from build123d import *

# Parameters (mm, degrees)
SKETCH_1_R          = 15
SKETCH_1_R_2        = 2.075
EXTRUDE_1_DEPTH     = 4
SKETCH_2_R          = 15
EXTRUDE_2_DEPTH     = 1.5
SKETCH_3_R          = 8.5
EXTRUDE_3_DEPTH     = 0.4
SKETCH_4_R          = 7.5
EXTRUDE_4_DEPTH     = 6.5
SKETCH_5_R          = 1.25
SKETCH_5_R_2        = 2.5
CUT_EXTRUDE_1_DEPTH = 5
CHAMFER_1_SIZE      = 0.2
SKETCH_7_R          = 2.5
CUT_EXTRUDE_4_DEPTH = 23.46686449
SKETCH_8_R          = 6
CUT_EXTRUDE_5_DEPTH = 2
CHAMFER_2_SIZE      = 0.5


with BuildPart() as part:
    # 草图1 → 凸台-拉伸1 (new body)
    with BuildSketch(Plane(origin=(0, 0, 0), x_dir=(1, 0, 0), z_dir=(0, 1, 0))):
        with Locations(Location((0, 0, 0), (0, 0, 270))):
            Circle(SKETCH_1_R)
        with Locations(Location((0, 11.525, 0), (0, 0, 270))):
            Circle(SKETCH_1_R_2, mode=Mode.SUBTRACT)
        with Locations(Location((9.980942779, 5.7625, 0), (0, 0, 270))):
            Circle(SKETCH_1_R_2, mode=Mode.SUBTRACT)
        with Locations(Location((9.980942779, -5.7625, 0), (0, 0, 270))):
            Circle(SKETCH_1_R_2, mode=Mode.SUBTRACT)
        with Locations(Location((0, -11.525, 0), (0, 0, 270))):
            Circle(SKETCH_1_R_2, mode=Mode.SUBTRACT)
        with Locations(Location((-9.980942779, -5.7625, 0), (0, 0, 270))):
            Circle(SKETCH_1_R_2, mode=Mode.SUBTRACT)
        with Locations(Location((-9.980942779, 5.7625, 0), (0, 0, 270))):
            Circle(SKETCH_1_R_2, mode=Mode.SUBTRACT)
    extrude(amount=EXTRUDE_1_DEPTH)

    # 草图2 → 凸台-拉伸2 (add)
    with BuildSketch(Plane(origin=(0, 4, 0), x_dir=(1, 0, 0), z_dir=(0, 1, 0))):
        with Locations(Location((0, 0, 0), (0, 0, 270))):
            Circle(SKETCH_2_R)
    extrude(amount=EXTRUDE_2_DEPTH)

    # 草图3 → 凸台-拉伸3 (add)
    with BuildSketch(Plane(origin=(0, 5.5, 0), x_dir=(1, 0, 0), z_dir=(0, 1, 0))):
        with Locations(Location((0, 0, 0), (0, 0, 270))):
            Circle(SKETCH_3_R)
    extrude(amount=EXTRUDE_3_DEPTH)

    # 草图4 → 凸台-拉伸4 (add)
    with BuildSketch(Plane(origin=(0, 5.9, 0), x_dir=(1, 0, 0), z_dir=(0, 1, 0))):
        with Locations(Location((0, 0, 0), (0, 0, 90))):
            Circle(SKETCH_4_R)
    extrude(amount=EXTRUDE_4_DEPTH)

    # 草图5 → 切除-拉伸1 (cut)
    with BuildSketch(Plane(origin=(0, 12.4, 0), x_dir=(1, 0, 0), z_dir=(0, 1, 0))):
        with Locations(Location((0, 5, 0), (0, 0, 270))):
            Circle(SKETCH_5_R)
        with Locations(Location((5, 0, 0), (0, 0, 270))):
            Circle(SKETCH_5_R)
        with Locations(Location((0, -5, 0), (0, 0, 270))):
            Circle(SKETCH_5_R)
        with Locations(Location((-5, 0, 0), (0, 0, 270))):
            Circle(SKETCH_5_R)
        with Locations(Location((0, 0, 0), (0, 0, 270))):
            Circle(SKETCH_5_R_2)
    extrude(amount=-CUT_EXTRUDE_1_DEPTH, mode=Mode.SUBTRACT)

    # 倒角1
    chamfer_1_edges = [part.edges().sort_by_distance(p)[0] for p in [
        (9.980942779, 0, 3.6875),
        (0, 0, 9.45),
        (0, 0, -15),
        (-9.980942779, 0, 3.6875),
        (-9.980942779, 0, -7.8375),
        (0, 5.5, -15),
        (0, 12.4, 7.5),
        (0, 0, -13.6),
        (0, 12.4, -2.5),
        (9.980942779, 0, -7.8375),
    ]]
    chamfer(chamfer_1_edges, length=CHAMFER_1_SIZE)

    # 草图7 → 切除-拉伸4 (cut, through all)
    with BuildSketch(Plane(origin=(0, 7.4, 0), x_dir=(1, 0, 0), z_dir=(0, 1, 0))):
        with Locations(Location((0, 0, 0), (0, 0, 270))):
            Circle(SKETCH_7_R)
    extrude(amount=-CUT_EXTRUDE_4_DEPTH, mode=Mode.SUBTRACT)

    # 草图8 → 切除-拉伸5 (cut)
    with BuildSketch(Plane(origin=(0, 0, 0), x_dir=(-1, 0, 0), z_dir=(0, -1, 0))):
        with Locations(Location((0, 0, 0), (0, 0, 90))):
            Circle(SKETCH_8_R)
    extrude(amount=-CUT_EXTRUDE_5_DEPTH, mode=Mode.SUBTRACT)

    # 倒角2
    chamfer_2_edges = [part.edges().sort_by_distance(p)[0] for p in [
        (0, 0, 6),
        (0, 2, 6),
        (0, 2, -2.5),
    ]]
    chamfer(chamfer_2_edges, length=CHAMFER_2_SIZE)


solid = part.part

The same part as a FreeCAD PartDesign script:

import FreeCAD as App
import Part
import Sketcher

V = App.Vector
Q = App.Units.Quantity


def edges_at(feature, points):
    """Names of the edges that pass closest to the given points."""
    edges = feature.Shape.Edges
    near = lambda p: min(range(len(edges)), key=lambda i: edges[i].distToShape(Part.Vertex(*p))[0])
    return sorted({f"Edge{near(p) + 1}" for p in points})

doc = App.newDocument("Part")
params = doc.addObject("Spreadsheet::Sheet", "Params")
for row, (alias, value) in enumerate([
    ("sketch1_diameter", "30 mm"),
    ("sketch1_diameter2", "4.15 mm"),
    ("pad1_length", "4 mm"),
    ("sketch2_diameter", "30 mm"),
    ("pad2_length", "1.5 mm"),
    ("sketch3_diameter", "17 mm"),
    ("pad3_length", "0.4 mm"),
    ("sketch4_diameter", "15 mm"),
    ("pad4_length", "6.5 mm"),
    ("sketch5_diameter", "5 mm"),
    ("sketch5_diameter2", "2.5 mm"),
    ("pocket1_length", "5 mm"),
    ("chamfer_size", "0.2 mm"),
    ("sketch6_diameter", "5 mm"),
    ("sketch7_diameter", "12 mm"),
    ("pocket3_length", "2 mm"),
    ("chamfer2_size", "0.5 mm"),
], start=1):
    params.set(f"A{row}", alias)
    params.set(f"B{row}", "=" + value)
    params.setAlias(f"B{row}", alias)

body = doc.addObject("PartDesign::Body", "Body")

sketch1 = body.newObject("Sketcher::SketchObject", "Sketch")
sketch1.AttachmentSupport = (doc.getObject("XZ_Plane"), [""])
sketch1.MapMode = "FlatFace"
sketch1.addGeometry([
    Part.Circle(V(0, 0, 0), V(0, 0, 1), 15),
    Part.Circle(V(-10, -5.8, 0), V(0, 0, 1), 2.1),
    Part.Circle(V(0, -11.5, 0), V(0, 0, 1), 2.1),
    Part.Circle(V(-10, 5.8, 0), V(0, 0, 1), 2.1),
    Part.Circle(V(10, -5.8, 0), V(0, 0, 1), 2.1),
    Part.Circle(V(0, 11.5, 0), V(0, 0, 1), 2.1),
    Part.Circle(V(10, 5.8, 0), V(0, 0, 1), 2.1),
], False)
sketch1.addConstraint([
    Sketcher.Constraint("Coincident", 0, 3, -1, 1),
    Sketcher.Constraint("Equal", 1, 2),
    Sketcher.Constraint("Equal", 2, 3),
    Sketcher.Constraint("Equal", 3, 4),
    Sketcher.Constraint("Equal", 4, 5),
    Sketcher.Constraint("Equal", 5, 6),
    Sketcher.Constraint("Symmetric", 3, 3, 4, 3, -1, 1),
    Sketcher.Constraint("Symmetric", 2, 3, 5, 3, -1, 1),
    Sketcher.Constraint("Symmetric", 1, 3, 6, 3, -1, 1),
    Sketcher.Constraint("Symmetric", 1, 3, 4, 3, -2),
    Sketcher.Constraint("PointOnObject", 2, 3, -2),
    Sketcher.Constraint("Diameter", 0, Q("30 mm")),
    Sketcher.Constraint("Diameter", 1, Q("4.15 mm")),
    Sketcher.Constraint("DistanceY", 2, 3, 5, 3, Q("23.05 mm")),
    Sketcher.Constraint("DistanceY", 1, 3, 3, 3, Q("11.525 mm")),
    Sketcher.Constraint("DistanceX", 1, 3, -1, 1, Q("9.980943 mm")),
])
sketch1.setExpression("Constraints[11]", "Params.sketch1_diameter")
sketch1.setExpression("Constraints[12]", "Params.sketch1_diameter2")
pad1 = body.newObject("PartDesign::Pad", "Pad")
pad1.Profile = sketch1
pad1.setExpression("Length", "Params.pad1_length")
pad1.Reversed = True

sketch2 = body.newObject("Sketcher::SketchObject", "Sketch001")
sketch2.AttachmentSupport = (doc.getObject("XZ_Plane"), [""])
sketch2.MapMode = "FlatFace"
sketch2.AttachmentOffset = App.Placement(V(0, 0, -4), App.Rotation())
sketch2.addGeometry(Part.Circle(V(0, 0, 0), V(0, 0, 1), 15), False)
sketch2.addConstraint([
    Sketcher.Constraint("Coincident", 0, 3, -1, 1),
    Sketcher.Constraint("Diameter", 0, Q("30 mm")),
])
sketch2.setExpression("Constraints[1]", "Params.sketch2_diameter")
pad2 = body.newObject("PartDesign::Pad", "Pad001")
pad2.Profile = sketch2
pad2.setExpression("Length", "Params.pad2_length")
pad2.Reversed = True

sketch3 = body.newObject("Sketcher::SketchObject", "Sketch002")
sketch3.AttachmentSupport = (doc.getObject("XZ_Plane"), [""])
sketch3.MapMode = "FlatFace"
sketch3.AttachmentOffset = App.Placement(V(0, 0, -5.5), App.Rotation())
sketch3.addGeometry(Part.Circle(V(0, 0, 0), V(0, 0, 1), 8), False)
sketch3.addConstraint([
    Sketcher.Constraint("Coincident", 0, 3, -1, 1),
    Sketcher.Constraint("Diameter", 0, Q("17 mm")),
])
sketch3.setExpression("Constraints[1]", "Params.sketch3_diameter")
pad3 = body.newObject("PartDesign::Pad", "Pad002")
pad3.Profile = sketch3
pad3.setExpression("Length", "Params.pad3_length")
pad3.Reversed = True

sketch4 = body.newObject("Sketcher::SketchObject", "Sketch003")
sketch4.AttachmentSupport = (doc.getObject("XZ_Plane"), [""])
sketch4.MapMode = "FlatFace"
sketch4.AttachmentOffset = App.Placement(V(0, 0, -5.9), App.Rotation())
sketch4.addGeometry(Part.Circle(V(0, 0, 0), V(0, 0, 1), 8), False)
sketch4.addConstraint([
    Sketcher.Constraint("Coincident", 0, 3, -1, 1),
    Sketcher.Constraint("Diameter", 0, Q("15 mm")),
])
sketch4.setExpression("Constraints[1]", "Params.sketch4_diameter")
pad4 = body.newObject("PartDesign::Pad", "Pad003")
pad4.Profile = sketch4
pad4.setExpression("Length", "Params.pad4_length")
pad4.Reversed = True

sketch5 = body.newObject("Sketcher::SketchObject", "Sketch004")
sketch5.AttachmentSupport = (doc.getObject("XZ_Plane"), [""])
sketch5.MapMode = "FlatFace"
sketch5.AttachmentOffset = App.Placement(V(0, 0, -12.4), App.Rotation())
sketch5.addGeometry([
    Part.Circle(V(0, -5, 0), V(0, 0, 1), 1.2),
    Part.Circle(V(5, 0, 0), V(0, 0, 1), 1.2),
    Part.Circle(V(0, 5, 0), V(0, 0, 1), 1.2),
    Part.Circle(V(-5, 0, 0), V(0, 0, 1), 1.2),
    Part.Circle(V(0, 0, 0), V(0, 0, 1), 2.5),
], False)
sketch5.addConstraint([
    Sketcher.Constraint("Coincident", 4, 3, -1, 1),
    Sketcher.Constraint("Equal", 0, 1),
    Sketcher.Constraint("Equal", 1, 2),
    Sketcher.Constraint("Equal", 2, 3),
    Sketcher.Constraint("Symmetric", 0, 3, 2, 3, -1, 1),
    Sketcher.Constraint("Symmetric", 1, 3, 3, 3, -1, 1),
    Sketcher.Constraint("PointOnObject", 0, 3, -2),
    Sketcher.Constraint("PointOnObject", 1, 3, -1),
    Sketcher.Constraint("Diameter", 4, Q("5 mm")),
    Sketcher.Constraint("Diameter", 0, Q("2.5 mm")),
    Sketcher.Constraint("DistanceY", 0, 3, -1, 1, Q("5 mm")),
    Sketcher.Constraint("DistanceX", -1, 1, 1, 3, Q("5 mm")),
])
sketch5.setExpression("Constraints[8]", "Params.sketch5_diameter")
sketch5.setExpression("Constraints[9]", "Params.sketch5_diameter2")
pocket1 = body.newObject("PartDesign::Pocket", "Pocket")
pocket1.Profile = sketch5
pocket1.setExpression("Length", "Params.pocket1_length")
pocket1.Reversed = True
doc.recompute()

chamfer = body.newObject("PartDesign::Chamfer", "Chamfer")
chamfer.Base = (pocket1, edges_at(pocket1, [
    (9.981, 0, 3.688),
    (0, 0, 9.45),
    (0, 0, -15),
    (-9.981, 0, 3.688),
    (-9.981, 0, -7.838),
    (0, 5.5, -15),
    (0, 12.4, 7.5),
    (0, 0, -13.6),
    (0, 12.4, -2.5),
    (9.981, 0, -7.838),
]))
chamfer.setExpression("Size", "Params.chamfer_size")

sketch6 = body.newObject("Sketcher::SketchObject", "Sketch005")
sketch6.AttachmentSupport = (doc.getObject("XZ_Plane"), [""])
sketch6.MapMode = "FlatFace"
sketch6.AttachmentOffset = App.Placement(V(0, 0, -7.4), App.Rotation())
sketch6.addGeometry(Part.Circle(V(0, 0, 0), V(0, 0, 1), 2.5), False)
sketch6.addConstraint([
    Sketcher.Constraint("Coincident", 0, 3, -1, 1),
    Sketcher.Constraint("Diameter", 0, Q("5 mm")),
])
sketch6.setExpression("Constraints[1]", "Params.sketch6_diameter")
pocket2 = body.newObject("PartDesign::Pocket", "Pocket001")
pocket2.Profile = sketch6
pocket2.Type = "ThroughAll"
pocket2.Reversed = True

sketch7 = body.newObject("Sketcher::SketchObject", "Sketch006")
sketch7.AttachmentSupport = (doc.getObject("XZ_Plane"), [""])
sketch7.MapMode = "FlatFace"
sketch7.addGeometry(Part.Circle(V(0, 0, 0), V(0, 0, 1), 6), False)
sketch7.addConstraint([
    Sketcher.Constraint("Coincident", 0, 3, -1, 1),
    Sketcher.Constraint("Diameter", 0, Q("12 mm")),
])
sketch7.setExpression("Constraints[1]", "Params.sketch7_diameter")
pocket3 = body.newObject("PartDesign::Pocket", "Pocket002")
pocket3.Profile = sketch7
pocket3.setExpression("Length", "Params.pocket3_length")
doc.recompute()

chamfer2 = body.newObject("PartDesign::Chamfer", "Chamfer001")
chamfer2.Base = (pocket3, edges_at(pocket3, [(0, 0, 6), (0, 2, 6), (0, 2, -2.5)]))
chamfer2.setExpression("Size", "Params.chamfer2_size")

doc.recompute()
